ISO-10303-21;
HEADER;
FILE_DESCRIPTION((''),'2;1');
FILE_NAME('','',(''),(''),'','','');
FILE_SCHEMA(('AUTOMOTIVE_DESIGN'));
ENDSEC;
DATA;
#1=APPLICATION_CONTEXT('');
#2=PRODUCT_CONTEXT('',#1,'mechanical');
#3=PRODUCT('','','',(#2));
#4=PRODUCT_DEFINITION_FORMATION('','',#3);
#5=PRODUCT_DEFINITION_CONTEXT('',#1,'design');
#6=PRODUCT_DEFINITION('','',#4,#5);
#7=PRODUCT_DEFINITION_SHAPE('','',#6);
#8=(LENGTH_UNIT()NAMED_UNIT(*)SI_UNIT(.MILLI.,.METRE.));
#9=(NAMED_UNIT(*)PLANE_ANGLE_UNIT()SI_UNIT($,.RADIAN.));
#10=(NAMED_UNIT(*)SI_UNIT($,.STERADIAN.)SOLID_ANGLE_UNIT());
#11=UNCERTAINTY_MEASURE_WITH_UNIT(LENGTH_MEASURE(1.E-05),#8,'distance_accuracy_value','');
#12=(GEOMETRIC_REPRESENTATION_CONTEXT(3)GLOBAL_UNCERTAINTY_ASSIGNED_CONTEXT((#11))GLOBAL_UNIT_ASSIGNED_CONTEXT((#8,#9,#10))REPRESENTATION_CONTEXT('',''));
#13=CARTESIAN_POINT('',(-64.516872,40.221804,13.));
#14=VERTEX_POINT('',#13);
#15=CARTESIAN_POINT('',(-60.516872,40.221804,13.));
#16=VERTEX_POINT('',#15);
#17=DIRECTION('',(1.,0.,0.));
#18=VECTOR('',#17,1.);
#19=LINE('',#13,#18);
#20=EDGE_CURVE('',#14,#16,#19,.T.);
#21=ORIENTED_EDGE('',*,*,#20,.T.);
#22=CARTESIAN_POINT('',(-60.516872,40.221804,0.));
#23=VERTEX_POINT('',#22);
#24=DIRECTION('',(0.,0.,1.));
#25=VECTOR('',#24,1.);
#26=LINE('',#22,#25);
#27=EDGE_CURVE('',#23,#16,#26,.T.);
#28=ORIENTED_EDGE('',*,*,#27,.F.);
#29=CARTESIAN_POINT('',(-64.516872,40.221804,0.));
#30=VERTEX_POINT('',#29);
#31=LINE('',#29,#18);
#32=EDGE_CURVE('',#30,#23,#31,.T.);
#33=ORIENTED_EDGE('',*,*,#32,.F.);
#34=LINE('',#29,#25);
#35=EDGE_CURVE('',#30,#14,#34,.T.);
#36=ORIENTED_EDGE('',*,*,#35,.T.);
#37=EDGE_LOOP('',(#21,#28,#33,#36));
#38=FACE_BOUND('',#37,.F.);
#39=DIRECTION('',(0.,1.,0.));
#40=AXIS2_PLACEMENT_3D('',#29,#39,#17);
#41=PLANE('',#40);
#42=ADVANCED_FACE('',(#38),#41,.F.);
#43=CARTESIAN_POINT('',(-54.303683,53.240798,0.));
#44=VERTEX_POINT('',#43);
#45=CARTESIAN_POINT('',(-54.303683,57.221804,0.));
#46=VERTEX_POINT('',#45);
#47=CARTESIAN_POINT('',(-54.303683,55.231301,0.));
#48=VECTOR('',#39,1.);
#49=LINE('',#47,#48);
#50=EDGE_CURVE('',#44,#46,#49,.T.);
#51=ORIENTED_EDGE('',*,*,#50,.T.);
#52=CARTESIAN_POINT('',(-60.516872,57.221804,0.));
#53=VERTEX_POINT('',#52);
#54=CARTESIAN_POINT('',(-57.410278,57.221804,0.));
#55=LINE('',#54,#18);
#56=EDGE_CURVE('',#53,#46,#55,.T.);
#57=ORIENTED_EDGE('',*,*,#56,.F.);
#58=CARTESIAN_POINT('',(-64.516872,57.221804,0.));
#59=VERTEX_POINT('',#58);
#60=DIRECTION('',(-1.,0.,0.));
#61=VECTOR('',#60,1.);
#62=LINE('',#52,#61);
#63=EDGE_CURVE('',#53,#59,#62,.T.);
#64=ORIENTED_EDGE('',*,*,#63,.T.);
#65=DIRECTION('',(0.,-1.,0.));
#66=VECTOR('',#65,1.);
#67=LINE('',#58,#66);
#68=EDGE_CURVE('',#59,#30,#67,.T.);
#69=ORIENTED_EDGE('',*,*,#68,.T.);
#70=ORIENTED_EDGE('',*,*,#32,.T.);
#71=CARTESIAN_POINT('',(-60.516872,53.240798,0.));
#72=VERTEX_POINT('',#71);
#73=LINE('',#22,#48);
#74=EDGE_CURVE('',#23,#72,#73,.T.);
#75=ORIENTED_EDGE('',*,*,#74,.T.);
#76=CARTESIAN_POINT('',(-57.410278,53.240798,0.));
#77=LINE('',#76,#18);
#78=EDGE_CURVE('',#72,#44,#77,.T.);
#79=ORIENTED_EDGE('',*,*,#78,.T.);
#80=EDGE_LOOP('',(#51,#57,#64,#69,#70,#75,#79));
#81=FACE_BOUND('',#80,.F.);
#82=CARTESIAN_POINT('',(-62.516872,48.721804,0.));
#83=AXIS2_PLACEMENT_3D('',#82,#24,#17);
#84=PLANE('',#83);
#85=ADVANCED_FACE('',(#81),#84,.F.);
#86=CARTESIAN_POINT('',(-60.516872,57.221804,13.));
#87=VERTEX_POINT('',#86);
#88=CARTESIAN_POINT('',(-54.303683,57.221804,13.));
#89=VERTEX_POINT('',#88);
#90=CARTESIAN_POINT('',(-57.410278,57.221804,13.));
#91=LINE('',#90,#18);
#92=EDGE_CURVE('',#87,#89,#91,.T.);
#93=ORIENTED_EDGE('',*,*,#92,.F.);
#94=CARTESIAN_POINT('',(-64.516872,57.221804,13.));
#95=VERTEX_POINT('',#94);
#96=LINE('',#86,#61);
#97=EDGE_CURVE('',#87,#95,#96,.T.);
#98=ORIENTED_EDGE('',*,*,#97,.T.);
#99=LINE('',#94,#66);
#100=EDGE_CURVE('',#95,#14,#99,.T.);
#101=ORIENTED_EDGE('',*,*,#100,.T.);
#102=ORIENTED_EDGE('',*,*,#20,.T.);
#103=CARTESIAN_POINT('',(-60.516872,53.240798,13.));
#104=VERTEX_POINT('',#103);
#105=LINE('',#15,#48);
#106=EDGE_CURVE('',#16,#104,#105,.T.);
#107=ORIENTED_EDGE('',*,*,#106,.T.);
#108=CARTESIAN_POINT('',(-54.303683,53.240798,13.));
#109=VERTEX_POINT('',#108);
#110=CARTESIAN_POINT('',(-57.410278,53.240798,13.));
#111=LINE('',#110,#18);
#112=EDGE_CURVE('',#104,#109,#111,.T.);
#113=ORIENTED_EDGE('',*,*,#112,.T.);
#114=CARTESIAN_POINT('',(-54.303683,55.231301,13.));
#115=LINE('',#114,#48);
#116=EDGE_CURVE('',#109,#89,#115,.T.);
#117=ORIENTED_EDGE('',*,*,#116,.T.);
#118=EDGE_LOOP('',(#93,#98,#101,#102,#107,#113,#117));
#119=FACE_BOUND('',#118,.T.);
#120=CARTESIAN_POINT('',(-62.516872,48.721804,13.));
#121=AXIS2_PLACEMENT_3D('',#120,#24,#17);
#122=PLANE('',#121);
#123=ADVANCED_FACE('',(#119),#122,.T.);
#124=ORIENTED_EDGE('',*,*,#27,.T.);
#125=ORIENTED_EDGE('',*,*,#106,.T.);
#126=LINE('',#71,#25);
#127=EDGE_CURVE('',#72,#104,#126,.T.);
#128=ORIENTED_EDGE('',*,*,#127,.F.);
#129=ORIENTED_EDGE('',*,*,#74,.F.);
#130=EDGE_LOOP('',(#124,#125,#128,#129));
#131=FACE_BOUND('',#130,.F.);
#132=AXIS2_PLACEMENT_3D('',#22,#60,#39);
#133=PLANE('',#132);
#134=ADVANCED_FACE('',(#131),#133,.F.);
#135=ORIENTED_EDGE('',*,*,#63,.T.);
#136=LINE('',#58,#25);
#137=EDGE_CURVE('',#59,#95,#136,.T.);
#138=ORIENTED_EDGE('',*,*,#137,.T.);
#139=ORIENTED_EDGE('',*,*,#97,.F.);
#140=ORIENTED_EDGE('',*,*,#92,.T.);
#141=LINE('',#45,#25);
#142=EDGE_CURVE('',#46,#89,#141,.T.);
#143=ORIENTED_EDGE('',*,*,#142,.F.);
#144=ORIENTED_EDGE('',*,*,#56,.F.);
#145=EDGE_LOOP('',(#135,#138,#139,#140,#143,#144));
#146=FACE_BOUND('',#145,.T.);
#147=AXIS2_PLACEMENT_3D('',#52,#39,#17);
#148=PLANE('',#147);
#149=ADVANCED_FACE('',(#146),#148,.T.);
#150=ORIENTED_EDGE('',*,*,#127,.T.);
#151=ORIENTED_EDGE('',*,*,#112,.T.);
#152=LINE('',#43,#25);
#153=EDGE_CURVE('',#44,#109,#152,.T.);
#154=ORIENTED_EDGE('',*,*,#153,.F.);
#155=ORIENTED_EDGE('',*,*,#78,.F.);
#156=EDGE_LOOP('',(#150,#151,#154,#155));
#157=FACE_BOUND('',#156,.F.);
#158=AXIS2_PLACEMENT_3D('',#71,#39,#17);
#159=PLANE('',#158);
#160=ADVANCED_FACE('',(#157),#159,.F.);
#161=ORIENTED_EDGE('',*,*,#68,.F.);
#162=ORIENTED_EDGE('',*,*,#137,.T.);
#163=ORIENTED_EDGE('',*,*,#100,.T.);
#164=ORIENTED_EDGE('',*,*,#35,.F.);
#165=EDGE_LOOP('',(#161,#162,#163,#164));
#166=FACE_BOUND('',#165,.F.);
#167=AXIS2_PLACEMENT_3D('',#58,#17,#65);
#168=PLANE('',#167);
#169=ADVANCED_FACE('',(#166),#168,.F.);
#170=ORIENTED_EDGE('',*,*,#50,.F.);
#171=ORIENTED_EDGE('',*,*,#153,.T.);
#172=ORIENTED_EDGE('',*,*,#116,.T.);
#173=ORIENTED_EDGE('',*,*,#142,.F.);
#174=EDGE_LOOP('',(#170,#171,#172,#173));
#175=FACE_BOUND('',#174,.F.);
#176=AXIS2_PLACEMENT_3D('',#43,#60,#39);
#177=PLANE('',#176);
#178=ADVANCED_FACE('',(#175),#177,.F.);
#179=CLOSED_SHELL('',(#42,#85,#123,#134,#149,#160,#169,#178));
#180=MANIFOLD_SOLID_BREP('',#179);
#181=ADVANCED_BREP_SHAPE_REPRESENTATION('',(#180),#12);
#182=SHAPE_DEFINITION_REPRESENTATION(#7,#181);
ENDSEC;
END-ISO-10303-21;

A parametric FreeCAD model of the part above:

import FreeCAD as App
import Part
import Sketcher
from FreeCAD import Vector


def add_polygon(sketch, points):
    """Adds a closed chain of lines whose ends are joined by coincident constraints."""
    first, n = sketch.GeometryCount, len(points)
    for a, b in zip(points, points[1:] + points[:1]):
        sketch.addGeometry(Part.LineSegment(App.Vector(*a, 0), App.Vector(*b, 0)), False)
    for i in range(n):
        sketch.addConstraint(Sketcher.Constraint("Coincident", first + i, 2, first + (i + 1) % n, 1))

doc = App.newDocument("Part")
body = doc.addObject("PartDesign::Body", "Body")

# Sketch on XY plane
sketch1 = doc.addObject("Sketcher::SketchObject", "Sketch")
body.addObject(sketch1)
sketch1.AttachmentSupport = (doc.XY_Plane, [""])
sketch1.MapMode = "FlatFace"
add_polygon(sketch1, [(-64.516872, 40.221804), (-60.516872, 40.221804), (-60.516872, 53.240798), (-54.303683, 53.240798), (-54.303683, 57.221804), (-60.516872, 57.221804), (-64.516872, 57.221804)])  # lines 0-6
sketch1.addConstraint([
    Sketcher.Constraint("Horizontal", 0),
    Sketcher.Constraint("Vertical", 1),
    Sketcher.Constraint("Horizontal", 2),
    Sketcher.Constraint("Vertical", 3),
    Sketcher.Constraint("Horizontal", 4),
    Sketcher.Constraint("Horizontal", 5),
    Sketcher.Constraint("Vertical", 6),
    Sketcher.Constraint("Vertical", 1, 2, 4, 2),
    Sketcher.Constraint("DistanceX", 0, 1, 0, 2, 4.0),
    Sketcher.Constraint("DistanceY", 6, 2, 6, 1, 17.0),
    Sketcher.Constraint("DistanceX", 2, 1, 2, 2, 6.213188),
    Sketcher.Constraint("DistanceY", -1, 1, 1, 2, 53.240798),
    Sketcher.Constraint("DistanceY", 1, 1, 1, 2, 13.018994),
    Sketcher.Constraint("DistanceX", 0, 2, -1, 1, 60.516872),
])
pad1 = doc.addObject("PartDesign::Pad", "Pad")
body.addObject(pad1)
pad1.Profile = sketch1
pad1.Length = 13

doc.recompute()
